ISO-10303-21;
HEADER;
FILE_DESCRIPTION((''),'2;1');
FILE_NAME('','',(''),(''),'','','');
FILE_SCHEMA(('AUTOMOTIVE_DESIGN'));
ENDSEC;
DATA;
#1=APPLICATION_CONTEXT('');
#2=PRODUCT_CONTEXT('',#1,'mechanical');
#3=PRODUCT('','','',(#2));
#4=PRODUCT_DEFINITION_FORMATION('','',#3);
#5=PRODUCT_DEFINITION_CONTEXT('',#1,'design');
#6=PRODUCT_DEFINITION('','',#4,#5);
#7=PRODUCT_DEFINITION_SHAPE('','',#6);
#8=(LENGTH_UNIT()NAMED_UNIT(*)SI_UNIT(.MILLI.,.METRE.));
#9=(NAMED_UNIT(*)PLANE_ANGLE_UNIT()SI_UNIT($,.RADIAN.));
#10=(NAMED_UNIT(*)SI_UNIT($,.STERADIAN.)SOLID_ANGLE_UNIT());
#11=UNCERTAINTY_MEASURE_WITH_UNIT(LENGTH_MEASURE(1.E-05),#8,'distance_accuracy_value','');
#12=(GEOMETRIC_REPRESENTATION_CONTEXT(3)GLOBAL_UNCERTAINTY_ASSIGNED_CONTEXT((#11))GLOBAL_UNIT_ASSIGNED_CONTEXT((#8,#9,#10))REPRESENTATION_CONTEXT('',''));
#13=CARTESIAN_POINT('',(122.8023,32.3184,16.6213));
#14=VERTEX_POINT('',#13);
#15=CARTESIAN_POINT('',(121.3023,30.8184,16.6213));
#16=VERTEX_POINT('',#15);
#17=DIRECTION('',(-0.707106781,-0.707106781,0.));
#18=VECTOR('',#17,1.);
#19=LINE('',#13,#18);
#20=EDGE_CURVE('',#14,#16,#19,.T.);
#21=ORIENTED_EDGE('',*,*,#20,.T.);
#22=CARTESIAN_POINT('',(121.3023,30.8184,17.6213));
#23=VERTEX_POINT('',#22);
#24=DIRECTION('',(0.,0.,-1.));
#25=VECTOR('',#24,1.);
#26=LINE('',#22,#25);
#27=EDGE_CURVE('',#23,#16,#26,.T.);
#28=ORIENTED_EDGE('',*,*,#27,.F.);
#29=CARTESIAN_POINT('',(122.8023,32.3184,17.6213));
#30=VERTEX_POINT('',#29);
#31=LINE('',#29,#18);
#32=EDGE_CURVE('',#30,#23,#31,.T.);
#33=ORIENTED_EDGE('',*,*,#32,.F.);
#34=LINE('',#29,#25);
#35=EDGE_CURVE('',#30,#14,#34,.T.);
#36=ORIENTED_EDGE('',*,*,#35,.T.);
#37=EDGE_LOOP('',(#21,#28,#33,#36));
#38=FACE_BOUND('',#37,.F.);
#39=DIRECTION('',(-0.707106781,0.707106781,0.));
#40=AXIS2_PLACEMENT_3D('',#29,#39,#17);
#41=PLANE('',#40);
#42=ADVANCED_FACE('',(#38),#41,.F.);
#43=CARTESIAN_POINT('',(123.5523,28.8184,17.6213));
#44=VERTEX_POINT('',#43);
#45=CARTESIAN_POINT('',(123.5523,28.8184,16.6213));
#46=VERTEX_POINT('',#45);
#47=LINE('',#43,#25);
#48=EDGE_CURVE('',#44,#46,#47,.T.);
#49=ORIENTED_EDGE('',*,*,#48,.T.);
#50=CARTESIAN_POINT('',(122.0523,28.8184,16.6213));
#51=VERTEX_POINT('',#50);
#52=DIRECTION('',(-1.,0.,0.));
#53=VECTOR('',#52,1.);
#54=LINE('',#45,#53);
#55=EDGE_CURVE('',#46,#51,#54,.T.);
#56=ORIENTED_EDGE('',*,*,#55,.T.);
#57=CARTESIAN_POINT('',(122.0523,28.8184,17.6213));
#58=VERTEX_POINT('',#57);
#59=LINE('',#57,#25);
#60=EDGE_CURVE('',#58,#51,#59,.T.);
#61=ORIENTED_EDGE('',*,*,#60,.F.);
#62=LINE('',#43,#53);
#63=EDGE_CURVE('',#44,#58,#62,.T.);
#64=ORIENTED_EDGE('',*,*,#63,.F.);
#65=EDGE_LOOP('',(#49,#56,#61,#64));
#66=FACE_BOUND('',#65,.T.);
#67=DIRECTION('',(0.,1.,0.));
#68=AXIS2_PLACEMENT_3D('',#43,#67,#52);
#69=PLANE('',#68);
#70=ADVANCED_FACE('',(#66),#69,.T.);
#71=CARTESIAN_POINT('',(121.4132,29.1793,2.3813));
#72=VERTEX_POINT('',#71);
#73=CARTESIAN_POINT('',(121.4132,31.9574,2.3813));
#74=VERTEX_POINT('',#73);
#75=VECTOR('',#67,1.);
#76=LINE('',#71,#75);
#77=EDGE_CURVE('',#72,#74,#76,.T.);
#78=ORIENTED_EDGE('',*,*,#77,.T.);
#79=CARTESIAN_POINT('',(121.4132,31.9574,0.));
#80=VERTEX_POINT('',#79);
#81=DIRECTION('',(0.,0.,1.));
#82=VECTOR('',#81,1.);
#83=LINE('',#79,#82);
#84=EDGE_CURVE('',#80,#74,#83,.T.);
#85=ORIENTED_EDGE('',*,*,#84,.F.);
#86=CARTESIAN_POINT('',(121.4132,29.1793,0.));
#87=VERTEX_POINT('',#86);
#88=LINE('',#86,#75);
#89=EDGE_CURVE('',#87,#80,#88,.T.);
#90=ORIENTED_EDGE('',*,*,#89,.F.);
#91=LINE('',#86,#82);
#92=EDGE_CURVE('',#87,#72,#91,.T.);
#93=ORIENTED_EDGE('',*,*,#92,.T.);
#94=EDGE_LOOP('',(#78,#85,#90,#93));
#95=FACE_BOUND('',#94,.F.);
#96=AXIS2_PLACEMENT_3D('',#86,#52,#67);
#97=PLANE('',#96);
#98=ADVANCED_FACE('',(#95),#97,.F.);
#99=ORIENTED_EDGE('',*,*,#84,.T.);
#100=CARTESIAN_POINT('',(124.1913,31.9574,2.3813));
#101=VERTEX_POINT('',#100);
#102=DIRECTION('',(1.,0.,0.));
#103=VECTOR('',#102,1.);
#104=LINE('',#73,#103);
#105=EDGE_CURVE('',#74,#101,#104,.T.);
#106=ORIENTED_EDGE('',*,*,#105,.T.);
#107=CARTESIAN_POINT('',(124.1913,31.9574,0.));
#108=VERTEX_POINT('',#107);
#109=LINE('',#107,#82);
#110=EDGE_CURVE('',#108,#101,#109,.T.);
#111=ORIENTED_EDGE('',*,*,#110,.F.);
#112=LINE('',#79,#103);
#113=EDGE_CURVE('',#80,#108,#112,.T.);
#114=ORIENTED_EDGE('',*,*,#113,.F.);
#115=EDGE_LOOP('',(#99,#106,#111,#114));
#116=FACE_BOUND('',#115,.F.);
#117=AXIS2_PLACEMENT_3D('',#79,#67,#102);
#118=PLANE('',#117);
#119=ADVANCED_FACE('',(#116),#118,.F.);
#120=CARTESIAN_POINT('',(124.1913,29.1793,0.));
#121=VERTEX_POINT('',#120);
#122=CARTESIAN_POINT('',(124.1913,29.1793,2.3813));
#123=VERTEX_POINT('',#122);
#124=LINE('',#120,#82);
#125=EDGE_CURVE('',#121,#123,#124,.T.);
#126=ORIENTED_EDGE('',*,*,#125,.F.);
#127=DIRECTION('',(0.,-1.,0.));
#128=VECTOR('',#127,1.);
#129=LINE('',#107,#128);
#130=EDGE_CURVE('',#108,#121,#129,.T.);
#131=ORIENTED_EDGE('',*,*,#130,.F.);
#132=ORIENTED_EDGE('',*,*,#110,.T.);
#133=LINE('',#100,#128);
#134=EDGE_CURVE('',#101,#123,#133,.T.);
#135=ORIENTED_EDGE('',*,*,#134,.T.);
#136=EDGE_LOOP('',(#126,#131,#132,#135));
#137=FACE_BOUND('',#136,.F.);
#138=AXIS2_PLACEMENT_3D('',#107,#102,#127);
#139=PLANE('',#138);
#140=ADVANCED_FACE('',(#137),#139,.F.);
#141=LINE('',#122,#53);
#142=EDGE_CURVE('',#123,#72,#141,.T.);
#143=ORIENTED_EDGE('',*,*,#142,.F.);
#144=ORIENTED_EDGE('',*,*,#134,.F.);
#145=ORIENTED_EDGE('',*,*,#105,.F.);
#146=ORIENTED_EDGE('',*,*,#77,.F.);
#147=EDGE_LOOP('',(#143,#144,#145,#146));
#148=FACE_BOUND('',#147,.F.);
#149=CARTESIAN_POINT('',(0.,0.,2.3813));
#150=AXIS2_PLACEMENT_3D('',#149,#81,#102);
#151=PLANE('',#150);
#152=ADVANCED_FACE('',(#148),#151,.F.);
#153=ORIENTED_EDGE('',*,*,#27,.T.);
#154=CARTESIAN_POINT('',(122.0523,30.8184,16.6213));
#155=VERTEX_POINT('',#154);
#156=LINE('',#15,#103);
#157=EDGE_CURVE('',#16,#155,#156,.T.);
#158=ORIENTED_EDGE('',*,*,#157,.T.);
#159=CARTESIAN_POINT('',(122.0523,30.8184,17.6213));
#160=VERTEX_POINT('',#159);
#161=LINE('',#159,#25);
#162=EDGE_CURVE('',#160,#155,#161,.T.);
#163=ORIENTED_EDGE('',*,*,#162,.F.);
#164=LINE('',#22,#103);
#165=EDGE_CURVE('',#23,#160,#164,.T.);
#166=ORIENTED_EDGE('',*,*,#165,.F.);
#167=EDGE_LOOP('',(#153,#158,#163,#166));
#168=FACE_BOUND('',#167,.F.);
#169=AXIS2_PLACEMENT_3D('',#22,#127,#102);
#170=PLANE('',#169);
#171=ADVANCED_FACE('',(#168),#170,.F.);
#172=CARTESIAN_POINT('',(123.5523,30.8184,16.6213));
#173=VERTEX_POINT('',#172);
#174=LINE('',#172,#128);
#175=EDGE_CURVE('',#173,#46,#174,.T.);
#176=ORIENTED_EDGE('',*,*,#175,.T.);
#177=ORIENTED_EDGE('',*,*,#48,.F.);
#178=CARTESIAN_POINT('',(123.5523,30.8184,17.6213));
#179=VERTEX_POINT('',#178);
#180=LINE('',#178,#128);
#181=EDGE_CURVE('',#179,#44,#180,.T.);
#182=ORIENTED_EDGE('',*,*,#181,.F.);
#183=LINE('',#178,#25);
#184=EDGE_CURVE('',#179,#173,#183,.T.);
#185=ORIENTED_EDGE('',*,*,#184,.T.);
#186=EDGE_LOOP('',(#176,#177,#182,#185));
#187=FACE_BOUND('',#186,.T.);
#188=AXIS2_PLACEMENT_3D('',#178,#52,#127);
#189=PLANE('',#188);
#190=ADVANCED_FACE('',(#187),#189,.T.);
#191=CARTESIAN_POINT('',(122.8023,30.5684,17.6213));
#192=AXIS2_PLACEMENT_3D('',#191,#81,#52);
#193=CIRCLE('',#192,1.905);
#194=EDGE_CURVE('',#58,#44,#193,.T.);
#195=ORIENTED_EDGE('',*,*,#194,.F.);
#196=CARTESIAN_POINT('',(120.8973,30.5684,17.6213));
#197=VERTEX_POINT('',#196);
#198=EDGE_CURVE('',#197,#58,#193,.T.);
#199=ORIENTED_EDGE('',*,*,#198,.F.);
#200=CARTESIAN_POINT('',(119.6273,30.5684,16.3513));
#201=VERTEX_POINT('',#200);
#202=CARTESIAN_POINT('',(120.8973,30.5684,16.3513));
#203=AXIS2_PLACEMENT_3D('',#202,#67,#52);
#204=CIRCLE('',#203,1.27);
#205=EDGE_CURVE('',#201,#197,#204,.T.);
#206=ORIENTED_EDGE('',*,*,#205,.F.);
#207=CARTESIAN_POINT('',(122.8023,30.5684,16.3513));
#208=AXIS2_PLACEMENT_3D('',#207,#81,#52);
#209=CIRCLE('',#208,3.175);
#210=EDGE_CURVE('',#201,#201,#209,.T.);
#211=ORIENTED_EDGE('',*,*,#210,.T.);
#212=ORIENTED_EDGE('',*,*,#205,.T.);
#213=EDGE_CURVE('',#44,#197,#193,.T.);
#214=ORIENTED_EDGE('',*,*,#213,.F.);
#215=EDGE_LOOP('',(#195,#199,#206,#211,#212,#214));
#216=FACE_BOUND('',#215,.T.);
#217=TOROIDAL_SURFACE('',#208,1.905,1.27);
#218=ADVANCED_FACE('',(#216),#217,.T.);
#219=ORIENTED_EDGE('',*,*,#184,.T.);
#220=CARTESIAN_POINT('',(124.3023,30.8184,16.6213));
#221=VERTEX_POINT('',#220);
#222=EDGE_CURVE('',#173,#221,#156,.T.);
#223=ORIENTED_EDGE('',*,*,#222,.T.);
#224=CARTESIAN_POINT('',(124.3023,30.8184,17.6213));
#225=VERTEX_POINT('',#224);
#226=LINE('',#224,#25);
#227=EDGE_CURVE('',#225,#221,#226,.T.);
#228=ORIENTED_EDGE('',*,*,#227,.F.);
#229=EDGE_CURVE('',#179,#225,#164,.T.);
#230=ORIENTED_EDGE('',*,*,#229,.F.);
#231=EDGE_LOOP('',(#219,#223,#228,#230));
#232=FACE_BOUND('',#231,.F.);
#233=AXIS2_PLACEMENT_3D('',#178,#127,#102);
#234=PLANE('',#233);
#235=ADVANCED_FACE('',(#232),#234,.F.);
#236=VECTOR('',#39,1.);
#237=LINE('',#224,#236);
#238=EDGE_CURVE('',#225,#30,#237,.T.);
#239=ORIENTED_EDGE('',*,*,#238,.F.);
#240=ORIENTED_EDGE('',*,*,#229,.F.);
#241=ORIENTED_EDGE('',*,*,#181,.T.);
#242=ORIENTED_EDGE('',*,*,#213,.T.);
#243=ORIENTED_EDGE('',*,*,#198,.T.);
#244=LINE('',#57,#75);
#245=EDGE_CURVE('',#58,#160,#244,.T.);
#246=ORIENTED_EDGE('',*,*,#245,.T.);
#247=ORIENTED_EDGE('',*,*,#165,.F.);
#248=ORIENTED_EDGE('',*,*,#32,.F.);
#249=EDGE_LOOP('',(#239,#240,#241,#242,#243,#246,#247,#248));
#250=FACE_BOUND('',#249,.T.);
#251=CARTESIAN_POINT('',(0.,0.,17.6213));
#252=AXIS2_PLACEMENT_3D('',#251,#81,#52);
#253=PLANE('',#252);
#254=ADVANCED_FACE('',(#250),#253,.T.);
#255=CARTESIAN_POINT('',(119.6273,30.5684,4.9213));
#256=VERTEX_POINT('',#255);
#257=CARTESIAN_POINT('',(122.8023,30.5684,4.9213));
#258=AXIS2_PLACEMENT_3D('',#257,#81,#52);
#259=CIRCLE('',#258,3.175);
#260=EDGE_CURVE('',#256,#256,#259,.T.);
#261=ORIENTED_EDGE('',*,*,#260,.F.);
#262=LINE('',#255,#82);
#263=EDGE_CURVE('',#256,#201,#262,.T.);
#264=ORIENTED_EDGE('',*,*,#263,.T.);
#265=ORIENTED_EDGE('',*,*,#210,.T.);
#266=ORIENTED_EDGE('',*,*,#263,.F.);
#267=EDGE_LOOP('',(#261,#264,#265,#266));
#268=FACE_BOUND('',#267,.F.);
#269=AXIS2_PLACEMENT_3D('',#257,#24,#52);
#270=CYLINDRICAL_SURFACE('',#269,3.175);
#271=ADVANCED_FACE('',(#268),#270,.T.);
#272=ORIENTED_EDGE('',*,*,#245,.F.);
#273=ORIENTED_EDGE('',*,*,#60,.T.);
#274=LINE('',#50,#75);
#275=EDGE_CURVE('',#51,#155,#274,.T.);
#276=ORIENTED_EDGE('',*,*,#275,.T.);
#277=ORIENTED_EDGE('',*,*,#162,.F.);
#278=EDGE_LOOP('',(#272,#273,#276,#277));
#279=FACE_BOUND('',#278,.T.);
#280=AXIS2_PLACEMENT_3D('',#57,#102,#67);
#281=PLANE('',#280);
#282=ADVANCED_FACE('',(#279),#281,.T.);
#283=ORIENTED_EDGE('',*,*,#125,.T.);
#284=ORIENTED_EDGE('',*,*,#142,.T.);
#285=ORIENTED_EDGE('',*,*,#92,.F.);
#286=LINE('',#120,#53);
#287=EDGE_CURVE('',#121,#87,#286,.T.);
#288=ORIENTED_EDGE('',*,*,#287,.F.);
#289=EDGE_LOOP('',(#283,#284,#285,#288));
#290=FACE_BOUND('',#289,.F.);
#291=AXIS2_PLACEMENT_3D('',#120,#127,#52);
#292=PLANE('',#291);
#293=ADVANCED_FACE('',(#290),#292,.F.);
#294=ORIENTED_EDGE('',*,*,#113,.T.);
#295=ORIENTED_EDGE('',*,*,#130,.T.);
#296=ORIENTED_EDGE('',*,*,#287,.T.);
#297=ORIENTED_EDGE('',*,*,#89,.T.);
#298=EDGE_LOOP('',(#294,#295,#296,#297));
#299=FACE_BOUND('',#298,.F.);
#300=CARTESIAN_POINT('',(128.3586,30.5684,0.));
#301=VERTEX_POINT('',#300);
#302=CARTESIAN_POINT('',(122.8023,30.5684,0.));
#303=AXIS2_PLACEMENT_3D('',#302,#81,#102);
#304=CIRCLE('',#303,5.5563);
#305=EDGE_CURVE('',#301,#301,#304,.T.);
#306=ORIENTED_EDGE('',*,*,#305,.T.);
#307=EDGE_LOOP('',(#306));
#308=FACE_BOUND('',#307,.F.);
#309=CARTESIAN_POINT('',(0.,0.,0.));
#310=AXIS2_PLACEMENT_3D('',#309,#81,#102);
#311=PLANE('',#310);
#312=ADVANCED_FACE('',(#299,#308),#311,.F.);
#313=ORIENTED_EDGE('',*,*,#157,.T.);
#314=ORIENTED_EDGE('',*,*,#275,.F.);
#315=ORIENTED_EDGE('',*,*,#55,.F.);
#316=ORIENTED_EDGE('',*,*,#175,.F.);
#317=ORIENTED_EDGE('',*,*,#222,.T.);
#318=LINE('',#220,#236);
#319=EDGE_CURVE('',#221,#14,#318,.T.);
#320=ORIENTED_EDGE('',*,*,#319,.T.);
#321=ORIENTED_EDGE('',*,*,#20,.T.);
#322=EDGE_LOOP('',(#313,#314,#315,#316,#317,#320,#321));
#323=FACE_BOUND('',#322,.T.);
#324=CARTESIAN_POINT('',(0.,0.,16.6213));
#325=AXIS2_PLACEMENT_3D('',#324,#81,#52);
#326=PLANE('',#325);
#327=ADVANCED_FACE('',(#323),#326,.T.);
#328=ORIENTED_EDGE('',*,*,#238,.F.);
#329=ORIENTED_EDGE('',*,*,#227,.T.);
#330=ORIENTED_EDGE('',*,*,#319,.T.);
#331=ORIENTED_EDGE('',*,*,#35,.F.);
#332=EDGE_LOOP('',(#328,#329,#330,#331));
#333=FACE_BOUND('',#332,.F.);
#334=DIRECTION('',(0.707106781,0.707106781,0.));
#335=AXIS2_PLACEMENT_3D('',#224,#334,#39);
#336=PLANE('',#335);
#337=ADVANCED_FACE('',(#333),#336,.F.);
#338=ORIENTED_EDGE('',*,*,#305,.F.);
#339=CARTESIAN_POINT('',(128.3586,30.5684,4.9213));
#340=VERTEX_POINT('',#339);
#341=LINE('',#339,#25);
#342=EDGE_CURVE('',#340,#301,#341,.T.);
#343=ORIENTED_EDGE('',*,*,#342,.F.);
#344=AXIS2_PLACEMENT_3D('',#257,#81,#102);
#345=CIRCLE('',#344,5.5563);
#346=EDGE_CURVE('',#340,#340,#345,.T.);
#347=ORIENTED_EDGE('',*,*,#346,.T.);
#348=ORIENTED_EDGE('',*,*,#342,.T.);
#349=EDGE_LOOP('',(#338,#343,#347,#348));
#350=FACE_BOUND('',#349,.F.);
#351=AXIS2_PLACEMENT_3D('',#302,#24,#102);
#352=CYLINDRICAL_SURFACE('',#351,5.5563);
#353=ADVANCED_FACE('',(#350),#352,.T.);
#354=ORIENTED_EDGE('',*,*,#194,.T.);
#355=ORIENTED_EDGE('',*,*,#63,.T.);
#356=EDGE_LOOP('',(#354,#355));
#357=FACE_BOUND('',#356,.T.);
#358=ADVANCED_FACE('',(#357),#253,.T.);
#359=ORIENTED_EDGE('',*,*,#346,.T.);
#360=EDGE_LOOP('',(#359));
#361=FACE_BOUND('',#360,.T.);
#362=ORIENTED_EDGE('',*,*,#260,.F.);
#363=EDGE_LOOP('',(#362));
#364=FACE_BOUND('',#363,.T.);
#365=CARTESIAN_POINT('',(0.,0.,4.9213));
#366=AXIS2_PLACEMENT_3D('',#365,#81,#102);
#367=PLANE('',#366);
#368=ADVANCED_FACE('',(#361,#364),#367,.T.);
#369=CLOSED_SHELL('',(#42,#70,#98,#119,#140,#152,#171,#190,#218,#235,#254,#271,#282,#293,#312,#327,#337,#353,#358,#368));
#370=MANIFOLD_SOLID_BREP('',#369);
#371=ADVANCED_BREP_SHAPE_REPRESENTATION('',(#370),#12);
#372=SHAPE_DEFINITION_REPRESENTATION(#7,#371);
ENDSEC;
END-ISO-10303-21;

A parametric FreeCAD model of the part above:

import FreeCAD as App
import Part
import Sketcher
Q = App.Units.Quantity


def edges_at(feature, points):
    """Names of the edges that pass closest to the given points."""
    edges = feature.Shape.Edges
    near = lambda p: min(range(len(edges)), key=lambda i: edges[i].distToShape(Part.Vertex(*p))[0])
    return sorted({f"Edge{near(p) + 1}" for p in points})

doc = App.newDocument("Part")
params = doc.addObject("Spreadsheet::Sheet", "Params")
for row, (alias, value) in enumerate([
    ("sketch1_diameter", "0.4375 in"),
    ("sketch1_width", "0.1093701 in"),
    ("pad1_length", "0.093752 in"),
    ("sketch2_diameter", "0.4375 in"),
    ("pad2_length", "0.1 in"),
    ("sketch3_diameter", "0.25 in"),
    ("pad3_length", "0.5 in"),
    ("fillet_radius", "0.05 in"),
    ("pocket1_length", "1 mm"),
], start=1):
    params.set(f"A{row}", alias)
    params.set(f"B{row}", "=" + value)
    params.setAlias(f"B{row}", alias)

body = doc.addObject("PartDesign::Body", "Body")

sketch1 = body.newObject("Sketcher::SketchObject", "Sketch")
sketch1.AttachmentSupport = (doc.getObject("XY_Plane"), [""])
sketch1.MapMode = "FlatFace"
sketch1.addGeometry([
    Part.Circle(App.Vector(122.8023, 30.5684, 0), App.Vector(0, 0, 1), 5.5563),
    Part.LineSegment(App.Vector(121.4132, 29.1793, 0), App.Vector(121.4132, 31.9574, 0)),
    Part.LineSegment(App.Vector(121.4132, 31.9574, 0), App.Vector(124.1913, 31.9574, 0)),
    Part.LineSegment(App.Vector(124.1913, 31.9574, 0), App.Vector(124.1913, 29.1793, 0)),
    Part.LineSegment(App.Vector(124.1913, 29.1793, 0), App.Vector(121.4132, 29.1793, 0)),
], False)
sketch1.addConstraint([
    Sketcher.Constraint("Coincident", 1, 2, 2, 1),
    Sketcher.Constraint("Coincident", 2, 2, 3, 1),
    Sketcher.Constraint("Coincident", 3, 2, 4, 1),
    Sketcher.Constraint("Coincident", 4, 2, 1, 1),
    Sketcher.Constraint("Vertical", 1),
    Sketcher.Constraint("Horizontal", 2),
    Sketcher.Constraint("Vertical", 3),
    Sketcher.Constraint("Horizontal", 4),
    Sketcher.Constraint("Equal", 4, 1),
    Sketcher.Constraint("Diameter", 0, Q("0.4375 in")),
    Sketcher.Constraint("DistanceX", 2, 1, 2, 2, Q("0.1093701 in")),
    Sketcher.Constraint("DistanceY", -1, 1, 3, 2, Q("1.1488 in")),
    Sketcher.Constraint("DistanceX", 1, 2, 0, 3, Q("0.0547 in")),
    Sketcher.Constraint("DistanceY", 3, 2, 0, 3, Q("0.0547 in")),
    Sketcher.Constraint("DistanceX", -1, 1, 0, 3, Q("122.8023 mm")),
])
sketch1.setExpression("Constraints[9]", "Params.sketch1_diameter")
sketch1.setExpression("Constraints[10]", "Params.sketch1_width")
pad1 = body.newObject("PartDesign::Pad", "Pad")
pad1.Profile = sketch1
pad1.setExpression("Length", "Params.pad1_length")

sketch2 = body.newObject("Sketcher::SketchObject", "Sketch001")
sketch2.AttachmentSupport = (doc.getObject("XY_Plane"), [""])
sketch2.MapMode = "FlatFace"
sketch2.AttachmentOffset = App.Placement(App.Vector(0, 0, 0.093752 * 25.4), App.Rotation())
sketch2.addGeometry(Part.Circle(App.Vector(122.8023, 30.5684, 0), App.Vector(0, 0, 1), 5.5563), False)
sketch2.addConstraint([
    Sketcher.Constraint("Diameter", 0, Q("0.4375 in")),
    Sketcher.Constraint("DistanceX", -1, 1, 0, 3, Q("122.8023 mm")),
    Sketcher.Constraint("DistanceY", -1, 1, 0, 3, Q("30.5684 mm")),
])
sketch2.setExpression("Constraints[0]", "Params.sketch2_diameter")
pad2 = body.newObject("PartDesign::Pad", "Pad001")
pad2.Profile = sketch2
pad2.setExpression("Length", "Params.pad2_length")

sketch3 = body.newObject("Sketcher::SketchObject", "Sketch002")
sketch3.AttachmentSupport = (doc.getObject("XY_Plane"), [""])
sketch3.MapMode = "FlatFace"
sketch3.AttachmentOffset = App.Placement(App.Vector(0, 0, 4.9213), App.Rotation())
sketch3.addGeometry(Part.Circle(App.Vector(122.8023, 30.5684, 0), App.Vector(0, 0, 1), 3.175), False)
sketch3.addConstraint([
    Sketcher.Constraint("Diameter", 0, Q("0.25 in")),
    Sketcher.Constraint("DistanceX", -1, 1, 0, 3, Q("122.8023 mm")),
    Sketcher.Constraint("DistanceY", -1, 1, 0, 3, Q("30.5684 mm")),
])
sketch3.setExpression("Constraints[0]", "Params.sketch3_diameter")
pad3 = body.newObject("PartDesign::Pad", "Pad002")
pad3.Profile = sketch3
pad3.setExpression("Length", "Params.pad3_length")
doc.recompute()

fillet = body.newObject("PartDesign::Fillet", "Fillet")
fillet.Base = (pad3, edges_at(pad3, [(125.762, 31.716, 17.621)]))
fillet.setExpression("Radius", "Params.fillet_radius")

sketch4 = body.newObject("Sketcher::SketchObject", "Sketch003")
sketch4.AttachmentSupport = (doc.getObject("XY_Plane"), [""])
sketch4.MapMode = "FlatFace"
sketch4.AttachmentOffset = App.Placement(App.Vector(0, 0, 17.6213), App.Rotation())
sketch4.addGeometry([
    Part.LineSegment(App.Vector(122.0523, 30.8184, 0), App.Vector(122.0523, 28.8184, 0)),
    Part.LineSegment(App.Vector(122.0523, 28.8184, 0), App.Vector(123.5523, 28.8184, 0)),
    Part.LineSegment(App.Vector(123.5523, 28.8184, 0), App.Vector(123.5523, 30.8184, 0)),
    Part.LineSegment(App.Vector(123.5523, 30.8184, 0), App.Vector(124.3023, 30.8184, 0)),
    Part.LineSegment(App.Vector(124.3023, 30.8184, 0), App.Vector(122.8023, 32.3184, 0)),
    Part.LineSegment(App.Vector(122.8023, 32.3184, 0), App.Vector(121.3023, 30.8184, 0)),
    Part.LineSegment(App.Vector(121.3023, 30.8184, 0), App.Vector(122.0523, 30.8184, 0)),
], False)
sketch4.addConstraint([
    Sketcher.Constraint("Coincident", 0, 2, 1, 1),
    Sketcher.Constraint("Coincident", 1, 2, 2, 1),
    Sketcher.Constraint("Coincident", 2, 2, 3, 1),
    Sketcher.Constraint("Coincident", 3, 2, 4, 1),
    Sketcher.Constraint("Coincident", 4, 2, 5, 1),
    Sketcher.Constraint("Coincident", 5, 2, 6, 1),
    Sketcher.Constraint("Coincident", 6, 2, 0, 1),
    Sketcher.Constraint("Vertical", 0),
    Sketcher.Constraint("Horizontal", 1),
    Sketcher.Constraint("Vertical", 2),
    Sketcher.Constraint("Horizontal", 3),
    Sketcher.Constraint("Horizontal", 6),
    Sketcher.Constraint("Perpendicular", 4, 5),
    Sketcher.Constraint("Horizontal", 3, 2, 5, 2),
    Sketcher.Constraint("Equal", 3, 6),
    Sketcher.Constraint("Equal", 4, 5),
    Sketcher.Constraint("DistanceX", 1, 1, 1, 2, Q("1.5 mm")),
    Sketcher.Constraint("DistanceY", 0, 2, 0, 1, Q("2 mm")),
    Sketcher.Constraint("DistanceX", 5, 2, 3, 2, Q("0.1181 in")),
    Sketcher.Constraint("DistanceX", -1, 1, 0, 2, Q("4.8052 in")),
    Sketcher.Constraint("DistanceY", -1, 1, 0, 2, Q("28.8184 mm")),
])
pocket1 = body.newObject("PartDesign::Pocket", "Pocket")
pocket1.Profile = sketch4
pocket1.setExpression("Length", "Params.pocket1_length")

doc.recompute()
